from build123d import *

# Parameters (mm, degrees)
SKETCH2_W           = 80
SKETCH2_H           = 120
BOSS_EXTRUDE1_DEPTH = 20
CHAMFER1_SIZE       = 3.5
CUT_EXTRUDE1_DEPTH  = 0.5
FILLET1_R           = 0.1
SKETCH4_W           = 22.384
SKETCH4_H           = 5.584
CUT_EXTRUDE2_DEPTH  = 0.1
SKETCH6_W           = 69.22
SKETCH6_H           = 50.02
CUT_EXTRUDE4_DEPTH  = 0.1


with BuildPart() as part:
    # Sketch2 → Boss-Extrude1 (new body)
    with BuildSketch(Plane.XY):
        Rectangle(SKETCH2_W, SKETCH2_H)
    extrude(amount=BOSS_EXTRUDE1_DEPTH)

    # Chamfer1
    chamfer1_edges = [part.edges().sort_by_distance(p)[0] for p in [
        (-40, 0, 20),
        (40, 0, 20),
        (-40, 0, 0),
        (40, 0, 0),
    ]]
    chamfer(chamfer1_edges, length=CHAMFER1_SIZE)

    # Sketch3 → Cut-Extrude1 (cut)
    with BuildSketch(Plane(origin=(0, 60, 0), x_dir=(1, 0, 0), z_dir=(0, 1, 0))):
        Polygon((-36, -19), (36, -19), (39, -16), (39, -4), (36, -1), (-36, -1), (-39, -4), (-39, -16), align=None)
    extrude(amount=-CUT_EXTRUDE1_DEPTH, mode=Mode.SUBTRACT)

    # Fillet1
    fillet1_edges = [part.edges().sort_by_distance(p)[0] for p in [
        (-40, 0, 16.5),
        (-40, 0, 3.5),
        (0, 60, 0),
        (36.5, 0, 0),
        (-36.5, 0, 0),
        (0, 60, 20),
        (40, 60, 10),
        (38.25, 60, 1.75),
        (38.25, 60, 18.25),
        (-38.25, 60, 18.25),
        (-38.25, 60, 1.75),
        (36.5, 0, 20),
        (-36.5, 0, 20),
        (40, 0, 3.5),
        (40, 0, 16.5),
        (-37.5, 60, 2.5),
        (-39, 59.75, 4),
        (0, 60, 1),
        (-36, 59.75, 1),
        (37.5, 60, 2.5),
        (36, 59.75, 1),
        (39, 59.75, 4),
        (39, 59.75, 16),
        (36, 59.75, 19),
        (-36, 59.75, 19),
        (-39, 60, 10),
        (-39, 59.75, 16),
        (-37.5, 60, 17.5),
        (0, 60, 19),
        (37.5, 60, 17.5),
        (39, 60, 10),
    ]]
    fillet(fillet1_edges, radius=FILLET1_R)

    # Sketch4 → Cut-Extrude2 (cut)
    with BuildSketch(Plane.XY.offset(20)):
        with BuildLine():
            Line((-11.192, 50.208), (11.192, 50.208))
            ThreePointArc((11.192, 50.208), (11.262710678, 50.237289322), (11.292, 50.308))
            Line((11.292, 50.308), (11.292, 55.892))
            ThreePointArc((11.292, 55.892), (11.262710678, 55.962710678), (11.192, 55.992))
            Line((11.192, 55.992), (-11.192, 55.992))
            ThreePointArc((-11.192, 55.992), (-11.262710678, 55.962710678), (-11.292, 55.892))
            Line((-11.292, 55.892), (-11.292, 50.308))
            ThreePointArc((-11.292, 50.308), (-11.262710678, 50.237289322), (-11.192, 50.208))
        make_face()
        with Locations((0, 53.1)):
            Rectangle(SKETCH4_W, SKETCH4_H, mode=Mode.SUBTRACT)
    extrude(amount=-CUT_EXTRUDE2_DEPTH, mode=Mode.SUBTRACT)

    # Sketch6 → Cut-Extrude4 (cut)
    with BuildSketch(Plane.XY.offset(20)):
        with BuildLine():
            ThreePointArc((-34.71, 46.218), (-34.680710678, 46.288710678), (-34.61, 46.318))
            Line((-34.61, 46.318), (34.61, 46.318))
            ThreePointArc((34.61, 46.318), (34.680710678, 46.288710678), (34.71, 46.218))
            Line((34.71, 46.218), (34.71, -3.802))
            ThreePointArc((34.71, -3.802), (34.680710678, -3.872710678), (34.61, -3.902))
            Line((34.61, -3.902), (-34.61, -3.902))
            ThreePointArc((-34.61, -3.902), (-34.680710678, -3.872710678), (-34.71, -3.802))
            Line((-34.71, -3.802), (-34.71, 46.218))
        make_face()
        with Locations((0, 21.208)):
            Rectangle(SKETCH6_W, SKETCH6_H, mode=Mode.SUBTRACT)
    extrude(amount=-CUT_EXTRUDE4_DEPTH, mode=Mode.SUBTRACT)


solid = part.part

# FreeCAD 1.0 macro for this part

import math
import FreeCAD as App
import Part
import Sketcher
from FreeCAD import Vector
Q = App.Units.Quantity


def edges_at(feature, points):
    """Names of the edges that pass closest to the given points."""
    edges = feature.Shape.Edges
    near = lambda p: min(range(len(edges)), key=lambda i: edges[i].distToShape(Part.Vertex(*p))[0])
    return sorted({f"Edge{near(p) + 1}" for p in points})

doc = App.newDocument("Part")
params = doc.addObject("Spreadsheet::Sheet", "Params")
for row, (alias, value) in enumerate([
    ("sketch1_width", "80 mm"),
    ("sketch1_height", "120 mm"),
    ("pad1_length", "20 mm"),
    ("chamfer_size", "3.5 mm"),
    ("sketch2_width", "72 mm"),
    ("sketch2_height", "12 mm"),
    ("pocket1_length", "0.5 mm"),
    ("fillet_radius", "0.1 mm"),
    ("sketch3_radius", "0.1 mm"),
    ("pocket2_length", "0.1 mm"),
    ("sketch4_radius", "0.1 mm"),
    ("sketch4_width", "69.22 mm"),
    ("sketch4_height", "50.02 mm"),
    ("pocket3_length", "0.1 mm"),
], start=1):
    params.set(f"A{row}", alias)
    params.set(f"B{row}", "=" + value)
    params.setAlias(f"B{row}", alias)

body = doc.addObject("PartDesign::Body", "Body")

sketch1 = doc.addObject("Sketcher::SketchObject", "Sketch")
body.addObject(sketch1)
sketch1.AttachmentSupport = (doc.XY_Plane, [""])
sketch1.MapMode = "FlatFace"
sketch1.addGeometry([
    Part.LineSegment(Vector(-40, 60, 0), Vector(-40, -60, 0)),
    Part.LineSegment(Vector(-40, -60, 0), Vector(40, -60, 0)),
    Part.LineSegment(Vector(40, -60, 0), Vector(40, 60, 0)),
    Part.LineSegment(Vector(40, 60, 0), Vector(-40, 60, 0)),
], False)
sketch1.addConstraint([
    Sketcher.Constraint("Coincident", 0, 2, 1, 1),
    Sketcher.Constraint("Coincident", 1, 2, 2, 1),
    Sketcher.Constraint("Coincident", 2, 2, 3, 1),
    Sketcher.Constraint("Coincident", 3, 2, 0, 1),
    Sketcher.Constraint("Vertical", 0),
    Sketcher.Constraint("Horizontal", 1),
    Sketcher.Constraint("Vertical", 2),
    Sketcher.Constraint("Horizontal", 3),
    Sketcher.Constraint("Symmetric", 0, 2, 2, 2, -1, 1),
    Sketcher.Constraint("DistanceX", 1, 1, 1, 2, Q("80 mm")),
    Sketcher.Constraint("DistanceY", 0, 2, 0, 1, Q("120 mm")),
])
sketch1.setExpression("Constraints[9]", "Params.sketch1_width")
sketch1.setExpression("Constraints[10]", "Params.sketch1_height")
pad1 = doc.addObject("PartDesign::Pad", "Pad")
body.addObject(pad1)
pad1.Profile = sketch1
pad1.setExpression("Length", "Params.pad1_length")
doc.recompute()

chamfer = doc.addObject("PartDesign::Chamfer", "Chamfer")
body.addObject(chamfer)
chamfer.Base = (pad1, edges_at(pad1, [
    (-40, 0, 20),
    (40, 0, 20),
    (-40, 0, 0),
    (40, 0, 0),
]))
chamfer.setExpression("Size", "Params.chamfer_size")

sketch2 = doc.addObject("Sketcher::SketchObject", "Sketch001")
body.addObject(sketch2)
sketch2.AttachmentSupport = (doc.XZ_Plane, [""])
sketch2.MapMode = "FlatFace"
sketch2.AttachmentOffset = App.Placement(Vector(0, 0, -60), App.Rotation())
sketch2.addGeometry([
    Part.LineSegment(Vector(-36, 19, 0), Vector(36, 19, 0)),
    Part.LineSegment(Vector(36, 19, 0), Vector(39, 16, 0)),
    Part.LineSegment(Vector(39, 16, 0), Vector(39, 4, 0)),
    Part.LineSegment(Vector(39, 4, 0), Vector(36, 1, 0)),
    Part.LineSegment(Vector(36, 1, 0), Vector(-36, 1, 0)),
    Part.LineSegment(Vector(-36, 1, 0), Vector(-39, 4, 0)),
    Part.LineSegment(Vector(-39, 4, 0), Vector(-39, 16, 0)),
    Part.LineSegment(Vector(-39, 16, 0), Vector(-36, 19, 0)),
], False)
sketch2.addConstraint([
    Sketcher.Constraint("Coincident", 0, 2, 1, 1),
    Sketcher.Constraint("Coincident", 1, 2, 2, 1),
    Sketcher.Constraint("Coincident", 2, 2, 3, 1),
    Sketcher.Constraint("Coincident", 3, 2, 4, 1),
    Sketcher.Constraint("Coincident", 4, 2, 5, 1),
    Sketcher.Constraint("Coincident", 5, 2, 6, 1),
    Sketcher.Constraint("Coincident", 6, 2, 7, 1),
    Sketcher.Constraint("Coincident", 7, 2, 0, 1),
    Sketcher.Constraint("Horizontal", 0),
    Sketcher.Constraint("Vertical", 2),
    Sketcher.Constraint("Horizontal", 4),
    Sketcher.Constraint("Vertical", 6),
    Sketcher.Constraint("Symmetric", 2, 2, 5, 2, -2),
    Sketcher.Constraint("Perpendicular", 1, 3),
    Sketcher.Constraint("Perpendicular", 3, 5),
    Sketcher.Constraint("Perpendicular", 5, 7),
    Sketcher.Constraint("Horizontal", 1, 2, 6, 2),
    Sketcher.Constraint("Vertical", 0, 2, 3, 2),
    Sketcher.Constraint("Vertical", 4, 2, 7, 2),
    Sketcher.Constraint("DistanceX", 0, 1, 0, 2, Q("72 mm")),
    Sketcher.Constraint("DistanceY", 2, 2, 2, 1, Q("12 mm")),
    Sketcher.Constraint("DistanceY", -1, 1, 0, 2, Q("19 mm")),
    Sketcher.Constraint("DistanceX", -1, 1, 1, 2, Q("39 mm")),
])
sketch2.setExpression("Constraints[19]", "Params.sketch2_width")
sketch2.setExpression("Constraints[20]", "Params.sketch2_height")
pocket1 = doc.addObject("PartDesign::Pocket", "Pocket")
body.addObject(pocket1)
pocket1.Profile = sketch2
pocket1.setExpression("Length", "Params.pocket1_length")
pocket1.Reversed = True
doc.recompute()

fillet = doc.addObject("PartDesign::Fillet", "Fillet")
body.addObject(fillet)
fillet.Base = (pocket1, edges_at(pocket1, [
    (-40, 0, 16.5),
    (-40, 0, 3.5),
    (0, 60, 0),
    (36.5, 0, 0),
    (-36.5, 0, 0),
    (0, 60, 20),
    (40, 60, 10),
    (38.25, 60, 1.75),
    (38.25, 60, 18.25),
    (-38.25, 60, 18.25),
    (-38.25, 60, 1.75),
    (36.5, 0, 20),
    (-36.5, 0, 20),
    (40, 0, 3.5),
    (40, 0, 16.5),
    (-37.5, 60, 2.5),
    (-39, 59.75, 4),
    (0, 60, 1),
    (-36, 59.75, 1),
    (37.5, 60, 2.5),
    (36, 59.75, 1),
    (39, 59.75, 4),
    (39, 59.75, 16),
    (36, 59.75, 19),
    (-36, 59.75, 19),
    (-39, 60, 10),
    (-39, 59.75, 16),
    (-37.5, 60, 17.5),
    (0, 60, 19),
    (37.5, 60, 17.5),
    (39, 60, 10),
]))
fillet.setExpression("Radius", "Params.fillet_radius")

sketch3 = doc.addObject("Sketcher::SketchObject", "Sketch002")
body.addObject(sketch3)
sketch3.AttachmentSupport = (doc.XY_Plane, [""])
sketch3.MapMode = "FlatFace"
sketch3.AttachmentOffset = App.Placement(Vector(0, 0, 20), App.Rotation())
sketch3.addGeometry([
    Part.LineSegment(Vector(-11.19, 50.21, 0), Vector(11.19, 50.21, 0)),
    Part.ArcOfCircle(Part.Circle(Vector(11.19, 50.31, 0), Vector(0, 0, 1), 0.1), math.radians(-90), math.radians(0)),
    Part.LineSegment(Vector(11.29, 50.31, 0), Vector(11.29, 55.89, 0)),
    Part.ArcOfCircle(Part.Circle(Vector(11.19, 55.89, 0), Vector(0, 0, 1), 0.1), math.radians(0), math.radians(90)),
    Part.LineSegment(Vector(11.19, 55.99, 0), Vector(-11.19, 55.99, 0)),
    Part.ArcOfCircle(Part.Circle(Vector(-11.19, 55.89, 0), Vector(0, 0, 1), 0.1), math.radians(90), math.radians(180)),
    Part.LineSegment(Vector(-11.29, 55.89, 0), Vector(-11.29, 50.31, 0)),
    Part.ArcOfCircle(Part.Circle(Vector(-11.19, 50.31, 0), Vector(0, 0, 1), 0.1), math.radians(180), math.radians(270)),
    Part.LineSegment(Vector(11.19, 50.31, 0), Vector(-11.19, 50.31, 0)),
    Part.LineSegment(Vector(-11.19, 50.31, 0), Vector(-11.19, 55.89, 0)),
    Part.LineSegment(Vector(-11.19, 55.89, 0), Vector(11.19, 55.89, 0)),
    Part.LineSegment(Vector(11.19, 55.89, 0), Vector(11.19, 50.31, 0)),
], False)
sketch3.addConstraint([
    Sketcher.Constraint("Tangent", 0, 2, 1, 1),
    Sketcher.Constraint("Tangent", 1, 2, 2, 1),
    Sketcher.Constraint("Tangent", 2, 2, 3, 1),
    Sketcher.Constraint("Tangent", 3, 2, 4, 1),
    Sketcher.Constraint("Tangent", 4, 2, 5, 1),
    Sketcher.Constraint("Tangent", 5, 2, 6, 1),
    Sketcher.Constraint("Tangent", 6, 2, 7, 1),
    Sketcher.Constraint("Tangent", 7, 2, 0, 1),
    Sketcher.Constraint("Coincident", 8, 2, 9, 1),
    Sketcher.Constraint("Coincident", 9, 2, 10, 1),
    Sketcher.Constraint("Coincident", 10, 2, 11, 1),
    Sketcher.Constraint("Coincident", 11, 2, 8, 1),
    Sketcher.Constraint("Horizontal", 0),
    Sketcher.Constraint("Vertical", 2),
    Sketcher.Constraint("Horizontal", 4),
    Sketcher.Constraint("Vertical", 6),
    Sketcher.Constraint("Horizontal", 8),
    Sketcher.Constraint("Vertical", 9),
    Sketcher.Constraint("Horizontal", 10),
    Sketcher.Constraint("Vertical", 11),
    Sketcher.Constraint("Coincident", 8, 2, 7, 3),
    Sketcher.Constraint("Coincident", 9, 2, 5, 3),
    Sketcher.Constraint("Coincident", 10, 2, 3, 3),
    Sketcher.Constraint("Equal", 1, 3),
    Sketcher.Constraint("Radius", 1, Q("0.1 mm")),
    Sketcher.Constraint("DistanceX", 0, 1, 0, 2, Q("22.384 mm")),
    Sketcher.Constraint("DistanceY", 2, 1, 2, 2, Q("5.584 mm")),
    Sketcher.Constraint("DistanceX", -1, 1, 1, 3, Q("11.192 mm")),
    Sketcher.Constraint("DistanceY", -1, 1, 1, 3, Q("50.308 mm")),
])
sketch3.setExpression("Constraints[24]", "Params.sketch3_radius")
pocket2 = doc.addObject("PartDesign::Pocket", "Pocket001")
body.addObject(pocket2)
pocket2.Profile = sketch3
pocket2.setExpression("Length", "Params.pocket2_length")

sketch4 = doc.addObject("Sketcher::SketchObject", "Sketch003")
body.addObject(sketch4)
sketch4.AttachmentSupport = (doc.XY_Plane, [""])
sketch4.MapMode = "FlatFace"
sketch4.AttachmentOffset = App.Placement(Vector(0, 0, 20), App.Rotation())
sketch4.addGeometry([
    Part.ArcOfCircle(Part.Circle(Vector(-34.61, 46.22, 0), Vector(0, 0, 1), 0.1), math.radians(90), math.radians(180)),
    Part.LineSegment(Vector(-34.71, 46.22, 0), Vector(-34.71, -3.8, 0)),
    Part.ArcOfCircle(Part.Circle(Vector(-34.61, -3.8, 0), Vector(0, 0, 1), 0.1), math.radians(180), math.radians(270)),
    Part.LineSegment(Vector(-34.61, -3.9, 0), Vector(34.61, -3.9, 0)),
    Part.ArcOfCircle(Part.Circle(Vector(34.61, -3.8, 0), Vector(0, 0, 1), 0.1), math.radians(-90), math.radians(0)),
    Part.LineSegment(Vector(34.71, -3.8, 0), Vector(34.71, 46.22, 0)),
    Part.ArcOfCircle(Part.Circle(Vector(34.61, 46.22, 0), Vector(0, 0, 1), 0.1), math.radians(0), math.radians(90)),
    Part.LineSegment(Vector(34.61, 46.32, 0), Vector(-34.61, 46.32, 0)),
    Part.LineSegment(Vector(-34.61, -3.8, 0), Vector(-34.61, 46.22, 0)),
    Part.LineSegment(Vector(-34.61, 46.22, 0), Vector(34.61, 46.22, 0)),
    Part.LineSegment(Vector(34.61, 46.22, 0), Vector(34.61, -3.8, 0)),
    Part.LineSegment(Vector(34.61, -3.8, 0), Vector(-34.61, -3.8, 0)),
], False)
sketch4.addConstraint([
    Sketcher.Constraint("Tangent", 0, 2, 1, 1),
    Sketcher.Constraint("Tangent", 1, 2, 2, 1),
    Sketcher.Constraint("Tangent", 2, 2, 3, 1),
    Sketcher.Constraint("Tangent", 3, 2, 4, 1),
    Sketcher.Constraint("Tangent", 4, 2, 5, 1),
    Sketcher.Constraint("Tangent", 5, 2, 6, 1),
    Sketcher.Constraint("Tangent", 6, 2, 7, 1),
    Sketcher.Constraint("Tangent", 7, 2, 0, 1),
    Sketcher.Constraint("Coincident", 8, 2, 9, 1),
    Sketcher.Constraint("Coincident", 9, 2, 10, 1),
    Sketcher.Constraint("Coincident", 10, 2, 11, 1),
    Sketcher.Constraint("Coincident", 11, 2, 8, 1),
    Sketcher.Constraint("Vertical", 1),
    Sketcher.Constraint("Horizontal", 3),
    Sketcher.Constraint("Vertical", 5),
    Sketcher.Constraint("Horizontal", 7),
    Sketcher.Constraint("Vertical", 8),
    Sketcher.Constraint("Horizontal", 9),
    Sketcher.Constraint("Vertical", 10),
    Sketcher.Constraint("Horizontal", 11),
    Sketcher.Constraint("Coincident", 8, 2, 0, 3),
    Sketcher.Constraint("Coincident", 9, 2, 6, 3),
    Sketcher.Constraint("Coincident", 10, 2, 4, 3),
    Sketcher.Constraint("Equal", 0, 2),
    Sketcher.Constraint("Radius", 0, Q("0.1 mm")),
    Sketcher.Constraint("DistanceX", 3, 1, 3, 2, Q("69.22 mm")),
    Sketcher.Constraint("DistanceY", 1, 2, 1, 1, Q("50.02 mm")),
    Sketcher.Constraint("DistanceX", 0, 3, -1, 1, Q("34.61 mm")),
    Sketcher.Constraint("DistanceY", -1, 1, 0, 3, Q("46.218 mm")),
])
sketch4.setExpression("Constraints[24]", "Params.sketch4_radius")
sketch4.setExpression("Constraints[25]", "Params.sketch4_width")
sketch4.setExpression("Constraints[26]", "Params.sketch4_height")
pocket3 = doc.addObject("PartDesign::Pocket", "Pocket002")
body.addObject(pocket3)
pocket3.Profile = sketch4
pocket3.setExpression("Length", "Params.pocket3_length")

doc.recompute()
